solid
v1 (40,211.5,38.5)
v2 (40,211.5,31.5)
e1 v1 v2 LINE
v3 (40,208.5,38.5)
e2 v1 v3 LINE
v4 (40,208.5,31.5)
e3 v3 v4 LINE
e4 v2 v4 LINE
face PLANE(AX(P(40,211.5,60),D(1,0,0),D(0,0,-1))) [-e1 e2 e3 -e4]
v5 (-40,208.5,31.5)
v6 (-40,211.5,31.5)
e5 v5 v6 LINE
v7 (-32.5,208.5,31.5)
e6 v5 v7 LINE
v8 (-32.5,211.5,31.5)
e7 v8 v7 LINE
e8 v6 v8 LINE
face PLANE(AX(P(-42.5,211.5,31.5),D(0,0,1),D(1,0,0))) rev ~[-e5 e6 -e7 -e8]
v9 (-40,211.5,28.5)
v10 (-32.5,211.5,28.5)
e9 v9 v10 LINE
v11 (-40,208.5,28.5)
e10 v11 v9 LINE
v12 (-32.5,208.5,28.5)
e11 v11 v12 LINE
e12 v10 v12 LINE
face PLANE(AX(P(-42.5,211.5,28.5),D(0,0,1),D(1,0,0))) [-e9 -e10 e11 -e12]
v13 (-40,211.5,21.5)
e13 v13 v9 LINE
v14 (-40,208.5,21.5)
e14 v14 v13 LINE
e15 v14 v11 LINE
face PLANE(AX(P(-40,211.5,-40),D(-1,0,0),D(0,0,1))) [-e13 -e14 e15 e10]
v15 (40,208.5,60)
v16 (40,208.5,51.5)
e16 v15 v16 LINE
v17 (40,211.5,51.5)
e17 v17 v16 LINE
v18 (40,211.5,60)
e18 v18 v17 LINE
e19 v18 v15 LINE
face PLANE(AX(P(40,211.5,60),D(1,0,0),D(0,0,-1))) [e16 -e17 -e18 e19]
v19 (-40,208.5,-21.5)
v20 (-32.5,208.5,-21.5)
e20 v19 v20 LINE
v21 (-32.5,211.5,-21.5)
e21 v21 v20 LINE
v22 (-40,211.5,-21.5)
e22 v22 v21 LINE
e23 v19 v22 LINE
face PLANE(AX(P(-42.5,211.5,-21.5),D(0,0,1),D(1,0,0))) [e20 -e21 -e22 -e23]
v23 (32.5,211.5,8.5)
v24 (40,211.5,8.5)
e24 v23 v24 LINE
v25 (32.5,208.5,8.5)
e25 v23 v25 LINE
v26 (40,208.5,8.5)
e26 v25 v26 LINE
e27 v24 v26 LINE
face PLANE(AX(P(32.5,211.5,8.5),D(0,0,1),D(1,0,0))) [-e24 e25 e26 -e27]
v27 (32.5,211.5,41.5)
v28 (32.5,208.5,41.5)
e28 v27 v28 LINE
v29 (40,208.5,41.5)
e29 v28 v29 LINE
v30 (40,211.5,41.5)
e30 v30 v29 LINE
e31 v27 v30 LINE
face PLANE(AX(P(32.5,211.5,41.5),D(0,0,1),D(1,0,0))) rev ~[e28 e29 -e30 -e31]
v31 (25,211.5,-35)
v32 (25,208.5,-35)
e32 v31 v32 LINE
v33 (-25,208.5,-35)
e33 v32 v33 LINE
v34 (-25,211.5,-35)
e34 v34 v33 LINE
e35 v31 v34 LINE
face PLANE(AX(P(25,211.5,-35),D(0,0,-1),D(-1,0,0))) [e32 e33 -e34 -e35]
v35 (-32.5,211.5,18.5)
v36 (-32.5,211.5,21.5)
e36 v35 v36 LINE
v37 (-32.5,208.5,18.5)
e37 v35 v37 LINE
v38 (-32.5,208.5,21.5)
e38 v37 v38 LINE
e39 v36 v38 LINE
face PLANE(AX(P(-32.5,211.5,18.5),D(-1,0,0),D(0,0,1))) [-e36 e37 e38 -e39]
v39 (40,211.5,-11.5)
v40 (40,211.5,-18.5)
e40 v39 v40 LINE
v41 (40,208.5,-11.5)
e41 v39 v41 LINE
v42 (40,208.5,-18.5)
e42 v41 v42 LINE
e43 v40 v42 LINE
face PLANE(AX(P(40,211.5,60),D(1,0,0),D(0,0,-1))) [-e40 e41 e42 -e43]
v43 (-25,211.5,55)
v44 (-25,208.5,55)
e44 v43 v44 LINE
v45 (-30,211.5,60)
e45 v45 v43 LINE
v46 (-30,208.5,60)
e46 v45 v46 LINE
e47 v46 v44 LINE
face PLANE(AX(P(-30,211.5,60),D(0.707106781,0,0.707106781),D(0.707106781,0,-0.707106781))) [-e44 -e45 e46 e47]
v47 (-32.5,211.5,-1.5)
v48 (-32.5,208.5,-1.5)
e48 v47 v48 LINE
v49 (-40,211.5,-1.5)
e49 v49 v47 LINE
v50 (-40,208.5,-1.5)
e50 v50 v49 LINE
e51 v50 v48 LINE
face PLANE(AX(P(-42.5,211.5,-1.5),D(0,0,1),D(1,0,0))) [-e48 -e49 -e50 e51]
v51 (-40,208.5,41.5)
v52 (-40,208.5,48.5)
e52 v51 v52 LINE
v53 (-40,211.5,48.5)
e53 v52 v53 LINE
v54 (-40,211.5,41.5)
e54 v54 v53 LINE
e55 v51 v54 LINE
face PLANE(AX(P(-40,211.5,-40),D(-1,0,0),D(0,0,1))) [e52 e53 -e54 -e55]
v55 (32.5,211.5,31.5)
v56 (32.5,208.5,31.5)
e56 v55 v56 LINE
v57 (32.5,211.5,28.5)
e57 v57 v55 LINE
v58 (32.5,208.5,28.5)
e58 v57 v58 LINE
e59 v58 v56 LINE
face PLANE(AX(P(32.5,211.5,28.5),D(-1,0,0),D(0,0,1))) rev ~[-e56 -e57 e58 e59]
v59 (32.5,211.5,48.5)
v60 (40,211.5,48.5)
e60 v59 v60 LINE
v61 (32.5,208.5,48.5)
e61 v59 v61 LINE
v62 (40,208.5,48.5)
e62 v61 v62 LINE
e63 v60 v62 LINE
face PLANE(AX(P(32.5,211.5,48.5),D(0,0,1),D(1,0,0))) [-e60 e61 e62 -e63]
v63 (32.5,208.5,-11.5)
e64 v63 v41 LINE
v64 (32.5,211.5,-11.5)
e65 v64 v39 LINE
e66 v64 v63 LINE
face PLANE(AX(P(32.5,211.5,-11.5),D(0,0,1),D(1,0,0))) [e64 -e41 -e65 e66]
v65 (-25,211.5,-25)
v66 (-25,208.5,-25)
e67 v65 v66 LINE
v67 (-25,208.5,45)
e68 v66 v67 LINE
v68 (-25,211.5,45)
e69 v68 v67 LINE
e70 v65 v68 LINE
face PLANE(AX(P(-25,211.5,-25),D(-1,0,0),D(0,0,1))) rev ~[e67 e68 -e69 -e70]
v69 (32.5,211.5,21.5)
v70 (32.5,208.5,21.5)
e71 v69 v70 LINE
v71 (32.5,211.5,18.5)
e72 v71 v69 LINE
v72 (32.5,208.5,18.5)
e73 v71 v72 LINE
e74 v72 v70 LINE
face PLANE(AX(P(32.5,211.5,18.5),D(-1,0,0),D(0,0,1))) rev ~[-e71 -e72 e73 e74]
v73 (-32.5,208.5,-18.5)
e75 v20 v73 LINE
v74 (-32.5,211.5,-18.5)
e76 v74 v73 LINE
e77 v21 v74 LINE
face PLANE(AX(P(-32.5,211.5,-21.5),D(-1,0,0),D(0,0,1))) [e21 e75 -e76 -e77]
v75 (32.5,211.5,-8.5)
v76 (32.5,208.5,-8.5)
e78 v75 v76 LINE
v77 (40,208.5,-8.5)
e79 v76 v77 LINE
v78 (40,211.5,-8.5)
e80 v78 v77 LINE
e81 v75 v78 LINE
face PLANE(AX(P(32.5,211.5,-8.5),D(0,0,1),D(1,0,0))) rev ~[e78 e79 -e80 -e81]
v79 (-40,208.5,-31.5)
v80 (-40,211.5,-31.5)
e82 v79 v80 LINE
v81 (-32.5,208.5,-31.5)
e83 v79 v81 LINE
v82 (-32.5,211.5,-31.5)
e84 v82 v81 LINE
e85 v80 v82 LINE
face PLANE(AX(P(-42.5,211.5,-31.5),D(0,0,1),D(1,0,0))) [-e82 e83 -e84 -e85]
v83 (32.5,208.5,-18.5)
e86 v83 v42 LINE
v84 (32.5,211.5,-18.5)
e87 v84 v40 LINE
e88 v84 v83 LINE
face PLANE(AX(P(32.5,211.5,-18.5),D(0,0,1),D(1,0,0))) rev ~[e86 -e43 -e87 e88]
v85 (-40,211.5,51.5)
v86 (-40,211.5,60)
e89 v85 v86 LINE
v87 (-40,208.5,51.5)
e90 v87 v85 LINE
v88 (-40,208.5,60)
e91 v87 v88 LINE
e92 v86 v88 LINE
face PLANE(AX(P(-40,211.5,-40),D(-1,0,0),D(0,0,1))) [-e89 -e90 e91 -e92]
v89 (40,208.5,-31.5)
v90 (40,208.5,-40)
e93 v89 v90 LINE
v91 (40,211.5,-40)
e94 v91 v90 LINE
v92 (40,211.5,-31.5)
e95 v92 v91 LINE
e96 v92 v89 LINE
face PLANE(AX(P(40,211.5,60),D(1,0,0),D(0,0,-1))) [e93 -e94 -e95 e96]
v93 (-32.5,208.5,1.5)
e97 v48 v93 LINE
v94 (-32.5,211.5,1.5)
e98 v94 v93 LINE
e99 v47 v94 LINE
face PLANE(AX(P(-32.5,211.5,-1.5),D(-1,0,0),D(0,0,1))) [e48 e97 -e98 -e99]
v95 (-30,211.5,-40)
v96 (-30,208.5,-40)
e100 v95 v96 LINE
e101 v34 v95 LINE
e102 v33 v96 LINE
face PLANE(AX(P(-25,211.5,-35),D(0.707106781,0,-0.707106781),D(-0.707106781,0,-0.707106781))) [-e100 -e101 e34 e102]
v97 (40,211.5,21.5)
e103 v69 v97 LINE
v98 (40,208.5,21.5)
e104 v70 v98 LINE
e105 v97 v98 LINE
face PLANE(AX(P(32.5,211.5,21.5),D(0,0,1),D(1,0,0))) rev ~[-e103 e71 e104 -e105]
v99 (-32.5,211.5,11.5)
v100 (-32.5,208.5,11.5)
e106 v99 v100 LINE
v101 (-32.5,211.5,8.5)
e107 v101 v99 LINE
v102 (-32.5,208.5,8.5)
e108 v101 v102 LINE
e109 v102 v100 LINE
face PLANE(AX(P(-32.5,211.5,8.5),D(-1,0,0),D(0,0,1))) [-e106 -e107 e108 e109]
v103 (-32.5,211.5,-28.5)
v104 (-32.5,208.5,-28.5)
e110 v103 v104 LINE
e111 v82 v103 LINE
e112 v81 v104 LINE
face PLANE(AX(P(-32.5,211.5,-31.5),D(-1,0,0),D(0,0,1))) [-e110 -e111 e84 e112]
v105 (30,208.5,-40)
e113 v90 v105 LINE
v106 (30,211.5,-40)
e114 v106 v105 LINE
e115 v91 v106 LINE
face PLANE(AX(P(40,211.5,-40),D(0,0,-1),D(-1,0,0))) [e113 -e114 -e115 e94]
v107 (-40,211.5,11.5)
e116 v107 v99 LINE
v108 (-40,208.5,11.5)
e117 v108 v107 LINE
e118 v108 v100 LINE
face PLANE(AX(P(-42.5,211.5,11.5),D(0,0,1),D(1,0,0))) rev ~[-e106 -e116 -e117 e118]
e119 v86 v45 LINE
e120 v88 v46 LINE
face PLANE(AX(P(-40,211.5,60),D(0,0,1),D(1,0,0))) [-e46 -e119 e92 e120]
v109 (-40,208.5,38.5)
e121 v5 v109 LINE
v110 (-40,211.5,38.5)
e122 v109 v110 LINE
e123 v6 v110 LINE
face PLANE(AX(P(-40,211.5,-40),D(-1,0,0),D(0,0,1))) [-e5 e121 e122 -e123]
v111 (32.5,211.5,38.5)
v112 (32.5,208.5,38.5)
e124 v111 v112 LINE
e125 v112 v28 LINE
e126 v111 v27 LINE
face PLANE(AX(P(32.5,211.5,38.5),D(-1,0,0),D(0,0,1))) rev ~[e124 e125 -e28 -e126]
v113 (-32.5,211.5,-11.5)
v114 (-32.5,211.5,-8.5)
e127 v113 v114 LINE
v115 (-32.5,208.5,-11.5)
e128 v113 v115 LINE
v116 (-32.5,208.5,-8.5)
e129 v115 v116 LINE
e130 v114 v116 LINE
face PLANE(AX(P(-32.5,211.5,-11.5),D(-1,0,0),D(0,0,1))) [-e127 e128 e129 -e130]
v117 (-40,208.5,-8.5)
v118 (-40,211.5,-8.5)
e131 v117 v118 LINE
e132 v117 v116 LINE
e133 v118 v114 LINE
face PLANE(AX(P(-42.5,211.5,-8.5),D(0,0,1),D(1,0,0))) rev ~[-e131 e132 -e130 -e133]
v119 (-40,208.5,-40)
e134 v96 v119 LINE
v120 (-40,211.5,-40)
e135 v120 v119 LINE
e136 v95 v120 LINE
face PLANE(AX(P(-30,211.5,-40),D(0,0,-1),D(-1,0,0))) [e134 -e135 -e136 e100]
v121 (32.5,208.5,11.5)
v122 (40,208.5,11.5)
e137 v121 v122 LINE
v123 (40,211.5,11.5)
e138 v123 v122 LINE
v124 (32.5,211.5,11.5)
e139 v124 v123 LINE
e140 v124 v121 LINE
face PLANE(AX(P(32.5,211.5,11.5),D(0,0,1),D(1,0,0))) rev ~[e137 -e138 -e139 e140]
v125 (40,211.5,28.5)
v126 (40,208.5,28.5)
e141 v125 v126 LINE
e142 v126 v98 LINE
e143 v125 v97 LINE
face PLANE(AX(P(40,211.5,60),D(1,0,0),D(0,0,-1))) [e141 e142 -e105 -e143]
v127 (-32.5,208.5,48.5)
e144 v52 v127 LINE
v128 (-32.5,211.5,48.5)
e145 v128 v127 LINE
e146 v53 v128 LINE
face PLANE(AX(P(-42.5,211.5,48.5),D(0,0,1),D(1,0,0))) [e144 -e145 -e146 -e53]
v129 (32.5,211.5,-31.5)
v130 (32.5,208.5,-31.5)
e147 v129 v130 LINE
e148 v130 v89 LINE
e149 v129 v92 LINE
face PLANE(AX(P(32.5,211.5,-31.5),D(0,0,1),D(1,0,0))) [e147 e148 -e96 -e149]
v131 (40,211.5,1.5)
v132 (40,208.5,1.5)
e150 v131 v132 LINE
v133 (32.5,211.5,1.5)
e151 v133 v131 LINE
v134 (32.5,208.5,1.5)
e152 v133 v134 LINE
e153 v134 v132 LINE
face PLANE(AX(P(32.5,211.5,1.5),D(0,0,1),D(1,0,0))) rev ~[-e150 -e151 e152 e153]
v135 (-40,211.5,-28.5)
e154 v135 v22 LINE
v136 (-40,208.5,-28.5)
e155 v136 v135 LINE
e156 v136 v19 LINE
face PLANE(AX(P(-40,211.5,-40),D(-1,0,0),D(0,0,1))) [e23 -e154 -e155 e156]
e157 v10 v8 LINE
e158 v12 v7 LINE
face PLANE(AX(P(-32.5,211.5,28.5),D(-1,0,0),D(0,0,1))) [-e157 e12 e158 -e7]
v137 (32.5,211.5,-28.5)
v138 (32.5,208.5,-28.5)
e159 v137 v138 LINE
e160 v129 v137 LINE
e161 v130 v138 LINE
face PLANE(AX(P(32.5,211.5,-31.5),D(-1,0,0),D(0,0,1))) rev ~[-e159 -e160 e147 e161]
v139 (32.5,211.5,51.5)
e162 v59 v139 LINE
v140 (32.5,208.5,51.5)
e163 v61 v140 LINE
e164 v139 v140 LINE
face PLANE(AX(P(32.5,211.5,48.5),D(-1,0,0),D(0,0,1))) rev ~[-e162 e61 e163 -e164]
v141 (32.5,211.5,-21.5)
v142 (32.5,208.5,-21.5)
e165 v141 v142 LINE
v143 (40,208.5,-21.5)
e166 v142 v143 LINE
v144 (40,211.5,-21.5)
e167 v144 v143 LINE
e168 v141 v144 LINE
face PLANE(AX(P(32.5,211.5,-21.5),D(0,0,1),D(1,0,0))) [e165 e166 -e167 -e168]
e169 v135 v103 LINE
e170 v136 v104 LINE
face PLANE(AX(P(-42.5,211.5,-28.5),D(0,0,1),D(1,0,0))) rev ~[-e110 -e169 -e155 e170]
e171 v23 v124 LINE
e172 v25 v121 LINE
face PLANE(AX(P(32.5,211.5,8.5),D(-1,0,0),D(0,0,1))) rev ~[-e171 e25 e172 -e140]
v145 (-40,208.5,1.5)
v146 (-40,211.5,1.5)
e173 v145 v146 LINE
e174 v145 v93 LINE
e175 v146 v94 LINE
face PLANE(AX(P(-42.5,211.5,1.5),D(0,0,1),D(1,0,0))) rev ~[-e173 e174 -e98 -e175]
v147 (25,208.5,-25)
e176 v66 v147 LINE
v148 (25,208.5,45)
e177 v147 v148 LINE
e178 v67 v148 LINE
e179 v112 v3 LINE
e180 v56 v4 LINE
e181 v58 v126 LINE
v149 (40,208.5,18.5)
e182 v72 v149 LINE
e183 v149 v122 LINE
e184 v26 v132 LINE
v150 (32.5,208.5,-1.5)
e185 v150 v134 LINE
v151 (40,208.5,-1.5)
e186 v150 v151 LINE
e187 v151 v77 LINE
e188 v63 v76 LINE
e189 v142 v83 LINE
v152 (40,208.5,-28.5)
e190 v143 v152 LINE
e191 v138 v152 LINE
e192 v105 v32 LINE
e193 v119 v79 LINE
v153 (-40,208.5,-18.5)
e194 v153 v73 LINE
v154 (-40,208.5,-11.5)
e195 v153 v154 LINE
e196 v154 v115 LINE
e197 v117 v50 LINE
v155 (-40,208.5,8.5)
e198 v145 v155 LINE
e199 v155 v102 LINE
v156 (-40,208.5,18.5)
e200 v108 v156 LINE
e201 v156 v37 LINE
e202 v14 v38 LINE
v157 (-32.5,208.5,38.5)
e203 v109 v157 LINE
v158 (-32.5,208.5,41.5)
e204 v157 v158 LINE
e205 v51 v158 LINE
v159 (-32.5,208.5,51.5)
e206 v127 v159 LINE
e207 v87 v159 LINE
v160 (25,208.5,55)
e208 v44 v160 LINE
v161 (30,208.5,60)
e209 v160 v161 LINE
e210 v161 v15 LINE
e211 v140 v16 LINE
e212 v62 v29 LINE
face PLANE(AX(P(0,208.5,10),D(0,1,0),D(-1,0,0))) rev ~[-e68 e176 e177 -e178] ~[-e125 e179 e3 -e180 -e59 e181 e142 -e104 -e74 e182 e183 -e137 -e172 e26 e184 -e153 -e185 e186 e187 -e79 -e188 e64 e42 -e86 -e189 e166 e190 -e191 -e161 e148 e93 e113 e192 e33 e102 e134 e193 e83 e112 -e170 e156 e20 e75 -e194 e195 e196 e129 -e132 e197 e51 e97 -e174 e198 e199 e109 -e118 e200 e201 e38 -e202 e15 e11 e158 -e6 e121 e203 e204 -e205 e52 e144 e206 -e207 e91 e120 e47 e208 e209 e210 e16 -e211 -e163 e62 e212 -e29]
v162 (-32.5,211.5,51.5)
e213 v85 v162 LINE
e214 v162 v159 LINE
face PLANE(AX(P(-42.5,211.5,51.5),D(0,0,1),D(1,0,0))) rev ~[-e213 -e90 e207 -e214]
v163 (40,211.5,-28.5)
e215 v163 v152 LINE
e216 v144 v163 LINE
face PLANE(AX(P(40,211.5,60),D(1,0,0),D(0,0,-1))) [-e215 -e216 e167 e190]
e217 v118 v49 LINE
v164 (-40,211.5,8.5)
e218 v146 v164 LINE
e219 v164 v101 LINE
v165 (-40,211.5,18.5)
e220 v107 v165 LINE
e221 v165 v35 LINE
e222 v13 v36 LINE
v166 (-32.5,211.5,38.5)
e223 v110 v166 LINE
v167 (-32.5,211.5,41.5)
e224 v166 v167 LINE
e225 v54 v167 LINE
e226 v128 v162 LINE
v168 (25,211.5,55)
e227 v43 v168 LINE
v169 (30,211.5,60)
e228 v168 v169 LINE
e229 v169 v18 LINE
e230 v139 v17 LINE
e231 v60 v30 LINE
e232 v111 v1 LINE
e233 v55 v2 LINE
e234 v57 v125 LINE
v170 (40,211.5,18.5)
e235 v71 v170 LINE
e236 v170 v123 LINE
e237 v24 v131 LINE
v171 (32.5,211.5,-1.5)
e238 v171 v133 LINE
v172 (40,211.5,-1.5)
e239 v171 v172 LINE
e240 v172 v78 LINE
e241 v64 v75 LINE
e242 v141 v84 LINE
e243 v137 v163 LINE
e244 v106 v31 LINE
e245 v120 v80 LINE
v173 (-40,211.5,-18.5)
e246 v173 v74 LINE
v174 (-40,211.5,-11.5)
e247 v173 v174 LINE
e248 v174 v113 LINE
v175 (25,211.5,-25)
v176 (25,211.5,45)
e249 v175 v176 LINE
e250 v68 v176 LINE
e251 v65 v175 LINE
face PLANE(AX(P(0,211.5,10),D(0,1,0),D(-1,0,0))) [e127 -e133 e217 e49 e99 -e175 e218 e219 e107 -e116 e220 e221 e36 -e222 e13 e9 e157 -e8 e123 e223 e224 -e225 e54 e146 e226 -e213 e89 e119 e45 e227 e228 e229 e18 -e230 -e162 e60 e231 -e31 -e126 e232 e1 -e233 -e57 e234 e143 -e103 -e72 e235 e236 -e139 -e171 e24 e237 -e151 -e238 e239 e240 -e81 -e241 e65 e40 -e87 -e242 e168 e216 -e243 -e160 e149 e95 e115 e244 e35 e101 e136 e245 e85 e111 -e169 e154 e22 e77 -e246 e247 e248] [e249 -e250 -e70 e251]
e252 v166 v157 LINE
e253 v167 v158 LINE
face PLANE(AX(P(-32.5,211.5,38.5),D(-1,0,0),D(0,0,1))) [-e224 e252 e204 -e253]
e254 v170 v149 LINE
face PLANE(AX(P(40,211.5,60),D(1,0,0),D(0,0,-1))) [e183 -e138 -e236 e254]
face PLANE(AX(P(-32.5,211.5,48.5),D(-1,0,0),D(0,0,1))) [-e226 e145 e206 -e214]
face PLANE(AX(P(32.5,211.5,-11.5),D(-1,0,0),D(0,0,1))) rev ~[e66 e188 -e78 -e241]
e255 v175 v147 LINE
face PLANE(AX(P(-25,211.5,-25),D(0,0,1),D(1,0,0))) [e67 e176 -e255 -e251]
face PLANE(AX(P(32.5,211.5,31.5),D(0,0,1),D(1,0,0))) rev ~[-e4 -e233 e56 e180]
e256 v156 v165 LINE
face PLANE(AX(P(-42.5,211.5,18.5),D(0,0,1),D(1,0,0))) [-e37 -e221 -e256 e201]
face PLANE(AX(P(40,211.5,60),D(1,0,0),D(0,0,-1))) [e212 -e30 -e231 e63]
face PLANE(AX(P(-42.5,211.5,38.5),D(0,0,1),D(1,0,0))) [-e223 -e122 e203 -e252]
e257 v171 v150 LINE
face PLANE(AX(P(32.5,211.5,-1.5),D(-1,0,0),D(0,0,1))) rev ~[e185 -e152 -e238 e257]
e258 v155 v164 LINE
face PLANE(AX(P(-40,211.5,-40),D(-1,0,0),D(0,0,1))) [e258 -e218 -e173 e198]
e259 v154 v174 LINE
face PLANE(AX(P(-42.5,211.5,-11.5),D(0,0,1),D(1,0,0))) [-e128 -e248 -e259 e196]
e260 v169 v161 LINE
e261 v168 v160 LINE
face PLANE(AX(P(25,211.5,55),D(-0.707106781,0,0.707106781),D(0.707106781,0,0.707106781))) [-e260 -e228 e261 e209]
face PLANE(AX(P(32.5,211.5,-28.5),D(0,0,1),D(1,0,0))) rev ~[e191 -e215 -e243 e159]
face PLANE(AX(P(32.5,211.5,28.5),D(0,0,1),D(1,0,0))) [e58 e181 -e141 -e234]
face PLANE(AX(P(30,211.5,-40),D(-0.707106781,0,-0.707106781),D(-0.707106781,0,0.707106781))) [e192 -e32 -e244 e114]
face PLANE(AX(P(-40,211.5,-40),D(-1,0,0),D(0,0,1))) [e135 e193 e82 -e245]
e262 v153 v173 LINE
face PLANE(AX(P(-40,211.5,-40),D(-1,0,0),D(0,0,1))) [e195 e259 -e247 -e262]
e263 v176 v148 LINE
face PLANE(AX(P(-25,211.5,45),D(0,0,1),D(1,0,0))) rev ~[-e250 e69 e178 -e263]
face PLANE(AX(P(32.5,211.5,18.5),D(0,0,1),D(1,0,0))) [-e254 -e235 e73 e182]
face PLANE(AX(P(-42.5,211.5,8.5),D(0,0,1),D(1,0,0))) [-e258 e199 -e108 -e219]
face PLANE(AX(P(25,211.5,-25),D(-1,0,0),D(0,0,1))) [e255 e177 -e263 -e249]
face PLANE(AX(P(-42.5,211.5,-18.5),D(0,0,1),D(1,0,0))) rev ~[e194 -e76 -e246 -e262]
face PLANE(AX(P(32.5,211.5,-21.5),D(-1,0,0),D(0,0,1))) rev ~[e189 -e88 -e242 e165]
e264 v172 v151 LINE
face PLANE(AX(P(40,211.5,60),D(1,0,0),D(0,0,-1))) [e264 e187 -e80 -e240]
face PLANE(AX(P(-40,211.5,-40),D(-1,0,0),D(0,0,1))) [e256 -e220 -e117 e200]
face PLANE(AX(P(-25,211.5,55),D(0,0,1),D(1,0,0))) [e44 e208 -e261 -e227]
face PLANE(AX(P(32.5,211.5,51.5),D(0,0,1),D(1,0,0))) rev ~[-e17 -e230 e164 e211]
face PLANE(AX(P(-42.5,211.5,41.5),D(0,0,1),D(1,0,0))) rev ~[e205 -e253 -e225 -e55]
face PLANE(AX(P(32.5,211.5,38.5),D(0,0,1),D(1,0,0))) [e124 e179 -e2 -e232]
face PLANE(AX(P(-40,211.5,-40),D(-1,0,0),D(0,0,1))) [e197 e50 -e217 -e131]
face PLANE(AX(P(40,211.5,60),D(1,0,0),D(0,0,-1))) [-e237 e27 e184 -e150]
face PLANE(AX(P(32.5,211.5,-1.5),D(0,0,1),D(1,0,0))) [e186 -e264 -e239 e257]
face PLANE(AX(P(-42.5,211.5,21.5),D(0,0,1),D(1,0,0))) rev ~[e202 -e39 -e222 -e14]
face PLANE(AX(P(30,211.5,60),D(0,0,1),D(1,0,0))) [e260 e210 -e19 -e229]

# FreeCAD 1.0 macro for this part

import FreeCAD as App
import Part
import Sketcher
from FreeCAD import Vector
Q = App.Units.Quantity


def add_polygon(sketch, points):
    """Adds a closed chain of lines whose ends are joined by coincident constraints."""
    first, n = sketch.GeometryCount, len(points)
    for a, b in zip(points, points[1:] + points[:1]):
        sketch.addGeometry(Part.LineSegment(App.Vector(*a, 0), App.Vector(*b, 0)), False)
    for i in range(n):
        sketch.addConstraint(Sketcher.Constraint("Coincident", first + i, 2, first + (i + 1) % n, 1))

doc = App.newDocument("Part")
params = doc.addObject("Spreadsheet::Sheet", "Params")
for row, (alias, value) in enumerate([
    ("sketch1_width", "10 mm"),
    ("sketch1_width2", "50 mm"),
    ("sketch1_height", "100 mm"),
    ("sketch1_height2", "70 mm"),
    ("pad1_length", "3 mm"),
    ("sketch2_width", "10 mm"),
    ("sketch2_height", "3 mm"),
    ("pocket1_length", "5 mm"),
    ("linearpattern_pitch", "10 mm"),
], start=1):
    params.set(f"A{row}", alias)
    params.set(f"B{row}", "=" + value)
    params.setAlias(f"B{row}", alias)

body = doc.addObject("PartDesign::Body", "Body")

# Sketch on XZ plane
sketch1 = body.newObject("Sketcher::SketchObject", "Sketch")
sketch1.AttachmentSupport = (doc.getObject("XZ_Plane"), [""])
sketch1.MapMode = "FlatFace"
add_polygon(sketch1, [(-30, 50), (-40, 50), (-40, -50), (-30, -50), (-25, -45), (25, -45), (30, -50), (40, -50), (40, 50), (30, 50), (25, 45), (-25, 45)])  # lines 0-11
add_polygon(sketch1, [(-25, -35), (-25, 35), (25, 35), (25, -35)])  # lines 12-15
sketch1.addConstraint([
    Sketcher.Constraint("Horizontal", 0),
    Sketcher.Constraint("Vertical", 1),
    Sketcher.Constraint("Horizontal", 2),
    Sketcher.Constraint("Horizontal", 4),
    Sketcher.Constraint("Horizontal", 6),
    Sketcher.Constraint("Vertical", 7),
    Sketcher.Constraint("Horizontal", 8),
    Sketcher.Constraint("Horizontal", 10),
    Sketcher.Constraint("Vertical", 12),
    Sketcher.Constraint("Horizontal", 13),
    Sketcher.Constraint("Vertical", 14),
    Sketcher.Constraint("Horizontal", 15),
    Sketcher.Constraint("Symmetric", 0, 2, 6, 2, -1, 1),
    Sketcher.Constraint("Symmetric", 2, 2, 8, 2, -1, 1),
    Sketcher.Constraint("Symmetric", 3, 2, 9, 2, -1, 1),
    Sketcher.Constraint("Symmetric", 12, 2, 14, 2, -1, 1),
    Sketcher.Constraint("Symmetric", 2, 2, 5, 2, -2),
    Sketcher.Constraint("Perpendicular", 3, 5),
    Sketcher.Constraint("Perpendicular", 9, 11),
    Sketcher.Constraint("Vertical", 4, 2, 9, 2),
    Sketcher.Constraint("Vertical", 3, 2, 10, 2),
    Sketcher.Constraint("Vertical", 10, 2, 12, 2),
    Sketcher.Constraint("DistanceX", 0, 2, 0, 1, Q("10 mm")),
    Sketcher.Constraint("DistanceX", 4, 1, 4, 2, Q("50 mm")),
    Sketcher.Constraint("DistanceY", 1, 2, 1, 1, Q("100 mm")),
    Sketcher.Constraint("DistanceY", 12, 1, 12, 2, Q("70 mm")),
    Sketcher.Constraint("DistanceX", 0, 2, -1, 1, Q("40 mm")),
])
sketch1.setExpression("Constraints[38]", "Params.sketch1_width")
sketch1.setExpression("Constraints[39]", "Params.sketch1_width2")
sketch1.setExpression("Constraints[40]", "Params.sketch1_height")
sketch1.setExpression("Constraints[41]", "Params.sketch1_height2")
pad1 = body.newObject("PartDesign::Pad", "Pad")
pad1.Profile = sketch1
pad1.setExpression("Length", "Params.pad1_length")

# Sketch on XZ plane
sketch2 = body.newObject("Sketcher::SketchObject", "Sketch001")
sketch2.AttachmentSupport = (doc.getObject("XZ_Plane"), [""])
sketch2.MapMode = "FlatFace"
add_polygon(sketch2, [(-42.5, -38.5), (-42.5, -41.5), (-32.5, -41.5), (-32.5, -38.5)])  # lines 0-3
add_polygon(sketch2, [(32.5, -38.5), (32.5, -41.5), (42.5, -41.5), (42.5, -38.5)])  # lines 4-7
sketch2.addConstraint([
    Sketcher.Constraint("Vertical", 0),
    Sketcher.Constraint("Horizontal", 1),
    Sketcher.Constraint("Vertical", 2),
    Sketcher.Constraint("Horizontal", 3),
    Sketcher.Constraint("Vertical", 4),
    Sketcher.Constraint("Horizontal", 5),
    Sketcher.Constraint("Vertical", 6),
    Sketcher.Constraint("Horizontal", 7),
    Sketcher.Constraint("Symmetric", 1, 2, 4, 2, -2),
    Sketcher.Constraint("Symmetric", 3, 2, 6, 2, -2),
    Sketcher.Constraint("DistanceX", 1, 1, 1, 2, Q("10 mm")),
    Sketcher.Constraint("DistanceY", 0, 2, 0, 1, Q("3 mm")),
    Sketcher.Constraint("DistanceX", 1, 2, 4, 2, Q("65 mm")),
    Sketcher.Constraint("DistanceY", 0, 2, -1, 1, Q("41.5 mm")),
])
sketch2.setExpression("Constraints[18]", "Params.sketch2_width")
sketch2.setExpression("Constraints[19]", "Params.sketch2_height")
pocket1 = body.newObject("PartDesign::Pocket", "Pocket")
pocket1.Profile = sketch2
pocket1.setExpression("Length", "Params.pocket1_length")
pocket1.Reversed = True
doc.recompute()

linearpattern = body.newObject("PartDesign::LinearPattern", "LinearPattern")
linearpattern.Originals = [pocket1]
linearpattern.Direction = (doc.getObject("Z_Axis"), [""])
linearpattern.Mode = "offset"
linearpattern.setExpression("Offset", "Params.linearpattern_pitch")
linearpattern.Occurrences = 9
body.Tip = linearpattern
body2 = doc.addObject("PartDesign::Body", "Body001")
doc.recompute()

body.Placement = App.Placement(Vector(0, 11.5, 10), App.Rotation(Vector(0, 0, 1), 0))
boolean = body2.newObject("PartDesign::Boolean", "Boolean")
boolean.Type = "Fuse"
boolean.addObjects([body])
body3 = doc.addObject("PartDesign::Body", "Body002")
doc.recompute()

body2.Placement = App.Placement(Vector(0, 200, 0), App.Rotation(Vector(0, 0, 1), 0))
boolean2 = body3.newObject("PartDesign::Boolean", "Boolean001")
boolean2.Type = "Fuse"
boolean2.addObjects([body2])

doc.recompute()
